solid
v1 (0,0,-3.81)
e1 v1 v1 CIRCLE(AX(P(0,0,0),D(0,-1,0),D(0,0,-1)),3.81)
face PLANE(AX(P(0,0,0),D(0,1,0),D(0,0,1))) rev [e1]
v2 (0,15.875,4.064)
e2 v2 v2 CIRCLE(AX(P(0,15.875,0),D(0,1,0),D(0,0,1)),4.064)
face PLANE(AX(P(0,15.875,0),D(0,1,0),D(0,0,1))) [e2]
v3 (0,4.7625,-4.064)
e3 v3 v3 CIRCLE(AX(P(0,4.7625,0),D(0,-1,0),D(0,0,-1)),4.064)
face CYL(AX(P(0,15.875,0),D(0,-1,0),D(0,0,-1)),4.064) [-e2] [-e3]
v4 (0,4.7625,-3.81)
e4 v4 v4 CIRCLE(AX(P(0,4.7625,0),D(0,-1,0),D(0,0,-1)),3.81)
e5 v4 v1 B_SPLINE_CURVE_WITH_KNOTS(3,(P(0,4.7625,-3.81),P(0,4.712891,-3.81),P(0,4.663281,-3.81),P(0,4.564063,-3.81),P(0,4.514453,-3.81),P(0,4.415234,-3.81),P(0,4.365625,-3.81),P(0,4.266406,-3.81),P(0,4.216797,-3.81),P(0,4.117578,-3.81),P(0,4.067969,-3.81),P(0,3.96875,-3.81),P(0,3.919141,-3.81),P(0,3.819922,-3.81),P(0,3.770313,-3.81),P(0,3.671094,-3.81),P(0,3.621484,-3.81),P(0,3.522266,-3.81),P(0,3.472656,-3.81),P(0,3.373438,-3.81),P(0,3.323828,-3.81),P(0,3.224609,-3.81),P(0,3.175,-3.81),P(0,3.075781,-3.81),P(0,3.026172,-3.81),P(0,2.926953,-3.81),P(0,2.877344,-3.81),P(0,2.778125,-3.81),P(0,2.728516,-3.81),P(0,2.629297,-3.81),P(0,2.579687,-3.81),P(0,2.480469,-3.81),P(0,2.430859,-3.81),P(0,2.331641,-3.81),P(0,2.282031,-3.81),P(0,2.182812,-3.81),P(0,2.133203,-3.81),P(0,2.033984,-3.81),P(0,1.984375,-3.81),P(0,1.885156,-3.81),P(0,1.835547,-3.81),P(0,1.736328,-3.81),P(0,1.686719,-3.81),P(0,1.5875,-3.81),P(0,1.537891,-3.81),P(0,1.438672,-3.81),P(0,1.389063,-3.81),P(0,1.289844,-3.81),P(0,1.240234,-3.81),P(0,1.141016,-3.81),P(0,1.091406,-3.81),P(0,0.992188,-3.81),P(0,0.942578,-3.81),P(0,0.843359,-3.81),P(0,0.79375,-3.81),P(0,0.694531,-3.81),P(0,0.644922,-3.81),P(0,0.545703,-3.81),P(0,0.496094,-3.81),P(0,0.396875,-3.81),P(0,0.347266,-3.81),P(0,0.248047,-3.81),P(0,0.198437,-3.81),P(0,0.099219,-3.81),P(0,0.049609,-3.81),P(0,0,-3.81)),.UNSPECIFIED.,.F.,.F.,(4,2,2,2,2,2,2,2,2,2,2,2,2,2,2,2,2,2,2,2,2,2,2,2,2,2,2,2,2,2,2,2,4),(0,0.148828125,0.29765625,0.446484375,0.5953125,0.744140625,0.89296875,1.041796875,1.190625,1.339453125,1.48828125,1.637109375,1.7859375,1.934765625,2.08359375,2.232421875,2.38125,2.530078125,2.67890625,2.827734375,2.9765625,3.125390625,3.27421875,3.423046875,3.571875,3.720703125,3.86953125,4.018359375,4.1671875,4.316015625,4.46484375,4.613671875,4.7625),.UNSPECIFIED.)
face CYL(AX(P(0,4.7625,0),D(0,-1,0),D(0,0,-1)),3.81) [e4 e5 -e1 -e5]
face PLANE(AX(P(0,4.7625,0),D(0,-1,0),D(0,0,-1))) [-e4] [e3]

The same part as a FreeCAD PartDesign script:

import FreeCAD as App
import Part
import Sketcher
from FreeCAD import Vector
Q = App.Units.Quantity

doc = App.newDocument("Part")
body = doc.addObject("PartDesign::Body", "Body")

sketch1 = body.newObject("Sketcher::SketchObject", "Sketch")
sketch1.AttachmentSupport = (doc.getObject("XZ_Plane"), [""])
sketch1.MapMode = "FlatFace"
sketch1.addGeometry(Part.Circle(Vector(0, 0, 0), Vector(0, 0, 1), 4.064), False)
sketch1.addConstraint(Sketcher.Constraint("Coincident", 0, 3, -1, 1))
sketch1.addConstraint(Sketcher.Constraint("Diameter", 0, Q("0.32 in")))
pad1 = body.newObject("PartDesign::Pad", "Pad")
pad1.Profile = sketch1
pad1.Length = Q("0.625 in")
pad1.Reversed = True

sketch2 = body.newObject("Sketcher::SketchObject", "Sketch001")
sketch2.AttachmentSupport = (doc.getObject("XZ_Plane"), [""])
sketch2.MapMode = "FlatFace"
sketch2.addGeometry(Part.Circle(Vector(0, 0, 0), Vector(0, 0, 1), 4.064), False)
sketch2.addGeometry(Part.Circle(Vector(0, 0, 0), Vector(0, 0, 1), 3.81), False)
sketch2.addConstraint(Sketcher.Constraint("Coincident", 0, 3, -1, 1))
sketch2.addConstraint(Sketcher.Constraint("Coincident", 1, 3, -1, 1))
sketch2.addConstraint(Sketcher.Constraint("Diameter", 1, Q("0.3 in")))
sketch2.addConstraint(Sketcher.Constraint("Diameter", 0, Q("0.32 in")))
pocket1 = body.newObject("PartDesign::Pocket", "Pocket")
pocket1.Profile = sketch2
pocket1.Length = Q("0.1875 in")

doc.recompute()
